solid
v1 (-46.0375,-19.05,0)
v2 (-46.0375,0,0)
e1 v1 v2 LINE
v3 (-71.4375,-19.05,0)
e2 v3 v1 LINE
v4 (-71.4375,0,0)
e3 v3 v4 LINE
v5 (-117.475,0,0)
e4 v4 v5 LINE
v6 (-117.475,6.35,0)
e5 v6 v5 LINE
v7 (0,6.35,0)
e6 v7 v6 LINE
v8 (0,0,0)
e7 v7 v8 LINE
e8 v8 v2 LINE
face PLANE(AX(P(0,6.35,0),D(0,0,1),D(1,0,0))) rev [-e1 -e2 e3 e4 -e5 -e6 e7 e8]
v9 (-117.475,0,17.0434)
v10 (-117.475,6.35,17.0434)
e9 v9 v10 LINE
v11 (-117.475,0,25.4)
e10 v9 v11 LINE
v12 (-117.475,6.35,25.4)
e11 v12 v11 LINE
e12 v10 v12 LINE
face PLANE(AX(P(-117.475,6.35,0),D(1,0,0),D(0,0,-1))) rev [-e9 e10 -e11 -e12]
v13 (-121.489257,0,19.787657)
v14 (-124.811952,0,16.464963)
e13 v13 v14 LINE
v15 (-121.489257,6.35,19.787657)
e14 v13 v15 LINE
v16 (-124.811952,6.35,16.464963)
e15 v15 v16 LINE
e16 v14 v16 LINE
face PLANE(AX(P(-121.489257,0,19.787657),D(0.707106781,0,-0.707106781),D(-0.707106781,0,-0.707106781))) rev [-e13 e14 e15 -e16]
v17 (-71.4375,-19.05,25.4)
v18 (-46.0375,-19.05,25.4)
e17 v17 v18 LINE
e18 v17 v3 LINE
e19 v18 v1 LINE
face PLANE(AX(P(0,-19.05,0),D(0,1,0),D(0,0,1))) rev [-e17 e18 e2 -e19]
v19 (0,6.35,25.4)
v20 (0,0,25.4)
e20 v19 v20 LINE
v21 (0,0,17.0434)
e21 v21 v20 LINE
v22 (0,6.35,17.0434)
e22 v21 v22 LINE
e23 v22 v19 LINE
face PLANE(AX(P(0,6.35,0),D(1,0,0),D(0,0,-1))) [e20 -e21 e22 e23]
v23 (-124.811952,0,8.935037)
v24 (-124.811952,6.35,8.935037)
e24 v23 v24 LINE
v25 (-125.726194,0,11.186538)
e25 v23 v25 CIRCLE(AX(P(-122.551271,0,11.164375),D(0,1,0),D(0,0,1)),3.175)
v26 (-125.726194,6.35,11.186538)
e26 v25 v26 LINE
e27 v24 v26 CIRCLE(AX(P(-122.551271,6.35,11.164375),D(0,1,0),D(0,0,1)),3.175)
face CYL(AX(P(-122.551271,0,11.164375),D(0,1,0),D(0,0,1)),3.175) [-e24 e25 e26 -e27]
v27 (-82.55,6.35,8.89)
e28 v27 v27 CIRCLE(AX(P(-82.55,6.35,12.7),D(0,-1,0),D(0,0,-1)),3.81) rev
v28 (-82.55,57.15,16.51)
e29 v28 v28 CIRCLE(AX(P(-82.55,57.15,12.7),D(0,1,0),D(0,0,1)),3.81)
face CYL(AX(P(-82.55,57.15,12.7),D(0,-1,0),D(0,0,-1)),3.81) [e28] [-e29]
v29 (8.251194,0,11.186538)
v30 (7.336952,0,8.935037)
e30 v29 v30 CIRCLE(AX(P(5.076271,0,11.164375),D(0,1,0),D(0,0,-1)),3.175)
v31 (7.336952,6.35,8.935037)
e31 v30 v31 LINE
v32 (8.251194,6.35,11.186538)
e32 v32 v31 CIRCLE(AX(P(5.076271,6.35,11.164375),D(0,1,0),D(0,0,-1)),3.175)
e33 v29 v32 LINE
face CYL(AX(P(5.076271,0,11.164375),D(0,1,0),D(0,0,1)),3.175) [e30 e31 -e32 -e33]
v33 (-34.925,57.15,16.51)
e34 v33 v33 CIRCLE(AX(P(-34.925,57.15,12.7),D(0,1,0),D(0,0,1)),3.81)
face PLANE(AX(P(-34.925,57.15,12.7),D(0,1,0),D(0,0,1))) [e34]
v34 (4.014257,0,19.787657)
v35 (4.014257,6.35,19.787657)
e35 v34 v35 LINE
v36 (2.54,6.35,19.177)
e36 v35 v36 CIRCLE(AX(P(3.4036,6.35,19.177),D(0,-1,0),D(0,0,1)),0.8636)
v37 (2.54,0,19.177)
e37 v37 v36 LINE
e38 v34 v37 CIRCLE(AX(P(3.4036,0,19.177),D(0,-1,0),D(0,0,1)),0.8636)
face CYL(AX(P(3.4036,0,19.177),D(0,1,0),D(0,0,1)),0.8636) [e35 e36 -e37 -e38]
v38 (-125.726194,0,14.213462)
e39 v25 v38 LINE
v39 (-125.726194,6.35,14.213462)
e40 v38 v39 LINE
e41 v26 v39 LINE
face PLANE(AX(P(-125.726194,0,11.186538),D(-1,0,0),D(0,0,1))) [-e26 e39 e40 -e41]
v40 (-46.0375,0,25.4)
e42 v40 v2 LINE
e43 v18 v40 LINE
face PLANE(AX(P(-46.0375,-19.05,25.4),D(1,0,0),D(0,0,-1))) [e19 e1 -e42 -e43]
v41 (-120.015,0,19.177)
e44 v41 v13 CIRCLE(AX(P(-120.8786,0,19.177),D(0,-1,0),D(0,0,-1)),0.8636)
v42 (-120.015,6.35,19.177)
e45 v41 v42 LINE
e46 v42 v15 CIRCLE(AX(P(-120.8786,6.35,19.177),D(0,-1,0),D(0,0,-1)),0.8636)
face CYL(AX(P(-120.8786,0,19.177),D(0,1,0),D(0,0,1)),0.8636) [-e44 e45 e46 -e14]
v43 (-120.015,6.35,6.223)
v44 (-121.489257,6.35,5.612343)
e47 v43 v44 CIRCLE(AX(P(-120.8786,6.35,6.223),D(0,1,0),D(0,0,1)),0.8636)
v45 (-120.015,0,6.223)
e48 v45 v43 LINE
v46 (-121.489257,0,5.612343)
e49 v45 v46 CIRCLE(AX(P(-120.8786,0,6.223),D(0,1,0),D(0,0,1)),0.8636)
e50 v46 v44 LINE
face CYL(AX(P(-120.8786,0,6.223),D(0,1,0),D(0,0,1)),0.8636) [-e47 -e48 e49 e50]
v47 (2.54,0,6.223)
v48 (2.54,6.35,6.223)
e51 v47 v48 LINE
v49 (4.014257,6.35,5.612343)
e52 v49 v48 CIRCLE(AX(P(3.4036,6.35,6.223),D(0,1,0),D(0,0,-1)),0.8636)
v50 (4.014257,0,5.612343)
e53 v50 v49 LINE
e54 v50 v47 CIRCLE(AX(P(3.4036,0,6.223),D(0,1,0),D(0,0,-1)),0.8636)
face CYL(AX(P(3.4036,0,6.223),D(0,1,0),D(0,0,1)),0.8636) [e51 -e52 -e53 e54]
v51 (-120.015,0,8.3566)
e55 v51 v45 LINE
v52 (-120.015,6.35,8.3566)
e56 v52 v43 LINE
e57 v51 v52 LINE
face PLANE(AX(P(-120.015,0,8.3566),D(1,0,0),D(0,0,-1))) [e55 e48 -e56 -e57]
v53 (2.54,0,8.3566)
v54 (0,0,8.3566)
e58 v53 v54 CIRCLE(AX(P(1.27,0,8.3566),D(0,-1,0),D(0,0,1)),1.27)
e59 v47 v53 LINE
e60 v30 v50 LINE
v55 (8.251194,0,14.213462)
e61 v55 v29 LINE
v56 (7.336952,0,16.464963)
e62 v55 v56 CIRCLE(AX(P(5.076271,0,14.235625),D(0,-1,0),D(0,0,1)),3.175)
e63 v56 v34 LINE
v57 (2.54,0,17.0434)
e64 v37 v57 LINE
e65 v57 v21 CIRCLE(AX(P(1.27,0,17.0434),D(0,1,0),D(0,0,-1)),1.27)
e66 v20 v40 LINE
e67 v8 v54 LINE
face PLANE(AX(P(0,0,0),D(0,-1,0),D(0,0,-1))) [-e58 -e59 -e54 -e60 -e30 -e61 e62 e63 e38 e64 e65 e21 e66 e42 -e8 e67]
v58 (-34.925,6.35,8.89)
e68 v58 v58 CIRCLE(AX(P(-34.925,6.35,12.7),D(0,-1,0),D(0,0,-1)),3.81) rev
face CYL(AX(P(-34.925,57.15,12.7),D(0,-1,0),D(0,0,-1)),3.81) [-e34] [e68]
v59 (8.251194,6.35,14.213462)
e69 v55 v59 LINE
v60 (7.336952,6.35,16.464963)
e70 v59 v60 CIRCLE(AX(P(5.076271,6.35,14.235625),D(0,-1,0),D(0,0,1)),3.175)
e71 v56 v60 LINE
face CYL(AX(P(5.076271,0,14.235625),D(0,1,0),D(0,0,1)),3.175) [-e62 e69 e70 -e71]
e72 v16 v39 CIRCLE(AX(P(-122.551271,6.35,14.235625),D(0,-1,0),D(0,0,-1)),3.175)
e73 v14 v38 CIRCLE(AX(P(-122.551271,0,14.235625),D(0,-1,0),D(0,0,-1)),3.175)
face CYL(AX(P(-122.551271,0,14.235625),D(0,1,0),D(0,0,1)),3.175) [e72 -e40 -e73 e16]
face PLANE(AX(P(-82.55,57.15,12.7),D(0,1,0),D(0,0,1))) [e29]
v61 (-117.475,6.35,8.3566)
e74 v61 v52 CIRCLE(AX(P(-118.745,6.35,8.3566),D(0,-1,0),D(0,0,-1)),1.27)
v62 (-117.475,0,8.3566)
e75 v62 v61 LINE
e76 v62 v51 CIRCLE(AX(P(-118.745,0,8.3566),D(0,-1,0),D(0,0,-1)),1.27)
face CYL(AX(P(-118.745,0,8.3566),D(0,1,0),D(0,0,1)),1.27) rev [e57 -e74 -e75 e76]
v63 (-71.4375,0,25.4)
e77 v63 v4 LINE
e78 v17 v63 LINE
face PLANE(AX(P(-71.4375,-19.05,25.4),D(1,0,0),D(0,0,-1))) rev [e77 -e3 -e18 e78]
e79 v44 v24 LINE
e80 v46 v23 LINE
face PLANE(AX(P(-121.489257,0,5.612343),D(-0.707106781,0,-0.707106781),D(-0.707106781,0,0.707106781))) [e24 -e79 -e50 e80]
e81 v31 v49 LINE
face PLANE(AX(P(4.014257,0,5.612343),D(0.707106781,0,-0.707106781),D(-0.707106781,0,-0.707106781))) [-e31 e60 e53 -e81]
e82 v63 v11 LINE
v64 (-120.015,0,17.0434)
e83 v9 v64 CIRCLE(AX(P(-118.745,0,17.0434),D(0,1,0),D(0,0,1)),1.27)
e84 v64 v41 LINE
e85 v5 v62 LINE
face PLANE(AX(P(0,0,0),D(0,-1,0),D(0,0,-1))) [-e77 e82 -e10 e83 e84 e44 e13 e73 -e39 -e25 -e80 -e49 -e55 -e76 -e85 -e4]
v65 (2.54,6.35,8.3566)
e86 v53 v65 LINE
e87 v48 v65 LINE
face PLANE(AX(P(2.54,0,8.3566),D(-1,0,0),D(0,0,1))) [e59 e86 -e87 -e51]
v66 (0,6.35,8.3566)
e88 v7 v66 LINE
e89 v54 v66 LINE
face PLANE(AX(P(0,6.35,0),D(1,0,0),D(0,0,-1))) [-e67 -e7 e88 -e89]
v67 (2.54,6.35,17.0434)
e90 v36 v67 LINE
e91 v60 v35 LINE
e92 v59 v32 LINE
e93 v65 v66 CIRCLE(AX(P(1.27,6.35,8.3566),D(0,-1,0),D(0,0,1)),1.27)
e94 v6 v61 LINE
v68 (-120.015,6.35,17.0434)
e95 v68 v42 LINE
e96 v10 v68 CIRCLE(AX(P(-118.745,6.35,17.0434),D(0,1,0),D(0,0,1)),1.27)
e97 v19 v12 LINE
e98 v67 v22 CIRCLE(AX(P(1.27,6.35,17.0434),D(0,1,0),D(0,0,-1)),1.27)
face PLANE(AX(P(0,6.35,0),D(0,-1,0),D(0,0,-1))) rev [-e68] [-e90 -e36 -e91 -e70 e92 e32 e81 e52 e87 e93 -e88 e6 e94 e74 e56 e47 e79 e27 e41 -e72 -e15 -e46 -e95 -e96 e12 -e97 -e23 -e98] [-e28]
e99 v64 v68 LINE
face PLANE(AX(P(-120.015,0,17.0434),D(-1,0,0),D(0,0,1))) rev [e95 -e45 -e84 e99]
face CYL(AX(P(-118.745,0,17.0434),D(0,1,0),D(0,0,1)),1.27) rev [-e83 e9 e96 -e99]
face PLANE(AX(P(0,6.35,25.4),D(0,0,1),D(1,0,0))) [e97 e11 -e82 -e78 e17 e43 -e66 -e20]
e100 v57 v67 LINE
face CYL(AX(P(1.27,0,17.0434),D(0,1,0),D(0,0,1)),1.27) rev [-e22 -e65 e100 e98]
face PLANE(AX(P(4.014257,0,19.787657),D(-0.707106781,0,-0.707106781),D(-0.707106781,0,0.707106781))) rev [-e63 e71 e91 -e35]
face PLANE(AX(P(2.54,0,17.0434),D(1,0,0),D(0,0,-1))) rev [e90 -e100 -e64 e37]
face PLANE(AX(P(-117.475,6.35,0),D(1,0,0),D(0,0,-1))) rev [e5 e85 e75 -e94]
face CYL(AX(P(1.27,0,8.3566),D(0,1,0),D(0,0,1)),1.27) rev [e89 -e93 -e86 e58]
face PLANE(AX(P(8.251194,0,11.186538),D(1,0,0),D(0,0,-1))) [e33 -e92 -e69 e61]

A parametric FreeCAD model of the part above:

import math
import FreeCAD as App
import Part
import Sketcher
from FreeCAD import Vector
Q = App.Units.Quantity


def add_polygon(sketch, points):
    """Adds a closed chain of lines whose ends are joined by coincident constraints."""
    first, n = sketch.GeometryCount, len(points)
    for a, b in zip(points, points[1:] + points[:1]):
        sketch.addGeometry(Part.LineSegment(App.Vector(*a, 0), App.Vector(*b, 0)), False)
    for i in range(n):
        sketch.addConstraint(Sketcher.Constraint("Coincident", first + i, 2, first + (i + 1) % n, 1))

doc = App.newDocument("Part")
body = doc.addObject("PartDesign::Body", "Body")

# Sketch on XZ plane
sketch1 = body.newObject("Sketcher::SketchObject", "Sketch")
sketch1.AttachmentSupport = (doc.getObject("XZ_Plane"), [""])
sketch1.MapMode = "FlatFace"
add_polygon(sketch1, [(-117, 0), (-117, 25), (0, 25), (0, 0)])  # lines 0-3
sketch1.addConstraint([
    Sketcher.Constraint("Vertical", 0),
    Sketcher.Constraint("Horizontal", 1),
    Sketcher.Constraint("Vertical", 2),
    Sketcher.Constraint("Horizontal", 3),
    Sketcher.Constraint("Coincident", 2, 2, -1, 1),
    Sketcher.Constraint("DistanceY", 0, 1, 0, 2, Q("1 in")),
    Sketcher.Constraint("DistanceX", 1, 1, 1, 2, Q("4.625 in")),
])
pad1 = body.newObject("PartDesign::Pad", "Pad")
pad1.Profile = sketch1
pad1.Length = Q("0.25 in")
pad1.Reversed = True

# Sketch on XZ plane
sketch2 = body.newObject("Sketcher::SketchObject", "Sketch001")
sketch2.AttachmentSupport = (doc.getObject("XZ_Plane"), [""])
sketch2.MapMode = "FlatFace"
sketch2.AttachmentOffset = App.Placement(Vector(0, 0, -0.25 * 25.4), App.Rotation())
sketch2.addGeometry([
    Part.Circle(Vector(-34.9, 12.7, 0), Vector(0, 0, 1), 3.8),
    Part.Circle(Vector(-82.5, 12.7, 0), Vector(0, 0, 1), 3.8),
], False)
sketch2.addConstraint([
    Sketcher.Constraint("Equal", 0, 1),
    Sketcher.Constraint("Horizontal", 0, 3, 1, 3),
    Sketcher.Constraint("Diameter", 0, Q("0.3 in")),
    Sketcher.Constraint("DistanceY", -1, 1, 0, 3, Q("0.5 in")),
    Sketcher.Constraint("DistanceX", 1, 3, -1, 1, Q("3.25 in")),
    Sketcher.Constraint("DistanceX", 0, 3, -1, 1, Q("1.375 in")),
])
pad2 = body.newObject("PartDesign::Pad", "Pad001")
pad2.Profile = sketch2
pad2.Length = Q("2 in")
pad2.Reversed = True

# Sketch on XZ plane
sketch3 = body.newObject("Sketcher::SketchObject", "Sketch002")
sketch3.AttachmentSupport = (doc.getObject("XZ_Plane"), [""])
sketch3.MapMode = "FlatFace"
sketch3.AttachmentOffset = App.Placement(Vector(0, 0, -0.25 * 25.4), App.Rotation())
sketch3.addGeometry([
    Part.LineSegment(Vector(0, 8.4, 0), Vector(0, 12.7, 0)),  # 0
    Part.LineSegment(Vector(0, 12.7, 0), Vector(8.3, 12.7, 0)),  # 1
    Part.LineSegment(Vector(8.3, 12.7, 0), Vector(8.3, 11.2, 0)),  # 2
    Part.ArcOfCircle(Part.Circle(Vector(5.1, 11.2, 0), Vector(0, 0, 1), 3.2), math.radians(-45), math.radians(0)),  # 3
    Part.LineSegment(Vector(7.3, 8.9, 0), Vector(4, 5.6, 0)),  # 4
    Part.ArcOfCircle(Part.Circle(Vector(3.4, 6.2, 0), Vector(0, 0, 1), 0.9), math.radians(180), math.radians(315)),  # 5
    Part.LineSegment(Vector(2.5, 6.2, 0), Vector(2.5, 8.4, 0)),  # 6
    Part.ArcOfCircle(Part.Circle(Vector(1.3, 8.4, 0), Vector(0, 0, 1), 1.3), math.radians(0), math.radians(180)),  # 7
    Part.LineSegment(Vector(-117.5, 12.7, 0), Vector(-117.5, 8.4, 0)),  # 8
    Part.ArcOfCircle(Part.Circle(Vector(-118.7, 8.4, 0), Vector(0, 0, 1), 1.3), math.radians(0), math.radians(180)),  # 9
    Part.LineSegment(Vector(-120, 8.4, 0), Vector(-120, 6.2, 0)),  # 10
    Part.ArcOfCircle(Part.Circle(Vector(-120.9, 6.2, 0), Vector(0, 0, 1), 0.9), math.radians(-135), math.radians(0)),  # 11
    Part.LineSegment(Vector(-121.5, 5.6, 0), Vector(-124.8, 8.9, 0)),  # 12
    Part.ArcOfCircle(Part.Circle(Vector(-122.6, 11.2, 0), Vector(0, 0, 1), 3.2), math.radians(180), math.radians(225)),  # 13
    Part.LineSegment(Vector(-125.7, 11.2, 0), Vector(-125.7, 12.7, 0)),  # 14
    Part.LineSegment(Vector(-125.7, 12.7, 0), Vector(-117.5, 12.7, 0)),  # 15
], False)
sketch3.addConstraint([
    Sketcher.Constraint("Coincident", 0, 2, 1, 1),
    Sketcher.Constraint("Coincident", 1, 2, 2, 1),
    Sketcher.Constraint("Coincident", 2, 2, 3, 2),
    Sketcher.Constraint("Coincident", 3, 1, 4, 1),
    Sketcher.Constraint("Tangent", 4, 2, 5, 2),
    Sketcher.Constraint("Tangent", 5, 1, 6, 1),
    Sketcher.Constraint("Tangent", 6, 2, 7, 1),
    Sketcher.Constraint("Tangent", 7, 2, 0, 1),
    Sketcher.Constraint("Tangent", 8, 2, 9, 1),
    Sketcher.Constraint("Tangent", 9, 2, 10, 1),
    Sketcher.Constraint("Tangent", 10, 2, 11, 2),
    Sketcher.Constraint("Tangent", 11, 1, 12, 1),
    Sketcher.Constraint("Coincident", 12, 2, 13, 2),
    Sketcher.Constraint("Coincident", 13, 1, 14, 1),
    Sketcher.Constraint("Coincident", 14, 2, 15, 1),
    Sketcher.Constraint("Coincident", 15, 2, 8, 1),
    Sketcher.Constraint("Vertical", 0),
    Sketcher.Constraint("Horizontal", 1),
    Sketcher.Constraint("Vertical", 2),
    Sketcher.Constraint("Vertical", 6),
    Sketcher.Constraint("Vertical", 8),
    Sketcher.Constraint("Vertical", 10),
    Sketcher.Constraint("Vertical", 14),
    Sketcher.Constraint("Horizontal", 15),
    Sketcher.Constraint("Equal", 7, 9),
    Sketcher.Constraint("Equal", 5, 11),
    Sketcher.Constraint("Equal", 3, 13),
    Sketcher.Constraint("PointOnObject", 0, 2, -2),
    Sketcher.Constraint("Perpendicular", 4, 12),
    Sketcher.Constraint("Horizontal", 7, 3, 9, 3),
    Sketcher.Constraint("Horizontal", 5, 3, 11, 3),
    Sketcher.Constraint("Horizontal", 3, 3, 13, 3),
    Sketcher.Constraint("Horizontal", 4, 2, 11, 1),
    Sketcher.Constraint("Horizontal", 3, 1, 12, 2),
    Sketcher.Constraint("Horizontal", 2, 2, 13, 1),
    Sketcher.Constraint("Horizontal", 1, 2, 14, 2),
    Sketcher.Constraint("Radius", 7, Q("0.05 in")),
    Sketcher.Constraint("Radius", 3, Q("0.125 in")),
    Sketcher.Constraint("Radius", 5, Q("0.034 in")),
    Sketcher.Constraint("DistanceY", -1, 1, 0, 2, Q("0.5 in")),
    Sketcher.Constraint("DistanceY", 0, 1, 0, 2, Q("0.171 in")),
    Sketcher.Constraint("DistanceY", 6, 1, 6, 2, Q("0.084 in")),
    Sketcher.Constraint("Distance", 4, Q("0.185 in")),
    Sketcher.Constraint("DistanceX", 9, 3, -1, 1, Q("4.675 in")),
    Sketcher.Constraint("DistanceY", 2, 2, 2, 1, 1.513462),
    Sketcher.Constraint("DistanceX", 1, 1, 1, 2, 8.251194),
])
pad3 = body.newObject("PartDesign::Pad", "Pad002")
pad3.Profile = sketch3
pad3.Length = Q("0.25 in")
doc.recompute()

datumplane = body.newObject("PartDesign::Plane", "DatumPlane")
datumplane.AttachmentSupport = (doc.getObject("XY_Plane"), [""])
datumplane.MapMode = "FlatFace"
datumplane.AttachmentOffset = App.Placement(Vector(0, 0, 0.5 * 25.4), App.Rotation())
mirrored = body.newObject("PartDesign::Mirrored", "Mirrored")
mirrored.Originals = [pad3]
mirrored.MirrorPlane = (datumplane, [""])
body.Tip = mirrored

# Sketch on XZ plane
sketch4 = body.newObject("Sketcher::SketchObject", "Sketch003")
sketch4.AttachmentSupport = (doc.getObject("XZ_Plane"), [""])
sketch4.MapMode = "FlatFace"
add_polygon(sketch4, [(-46, 0), (-46, 25), (-71, 25), (-71, 0)])  # lines 0-3
sketch4.addConstraint([
    Sketcher.Constraint("Vertical", 0),
    Sketcher.Constraint("Horizontal", 1),
    Sketcher.Constraint("Vertical", 2),
    Sketcher.Constraint("Horizontal", 3),
    Sketcher.Constraint("PointOnObject", 2, 2, -1),
    Sketcher.Constraint("Equal", 3, 0),
    Sketcher.Constraint("DistanceX", 1, 2, 1, 1, Q("1 in")),
    Sketcher.Constraint("DistanceX", 0, 2, -1, 1, Q("1.8125 in")),
])
pad4 = body.newObject("PartDesign::Pad", "Pad003")
pad4.Profile = sketch4
pad4.Length = Q("0.75 in")

doc.recompute()
